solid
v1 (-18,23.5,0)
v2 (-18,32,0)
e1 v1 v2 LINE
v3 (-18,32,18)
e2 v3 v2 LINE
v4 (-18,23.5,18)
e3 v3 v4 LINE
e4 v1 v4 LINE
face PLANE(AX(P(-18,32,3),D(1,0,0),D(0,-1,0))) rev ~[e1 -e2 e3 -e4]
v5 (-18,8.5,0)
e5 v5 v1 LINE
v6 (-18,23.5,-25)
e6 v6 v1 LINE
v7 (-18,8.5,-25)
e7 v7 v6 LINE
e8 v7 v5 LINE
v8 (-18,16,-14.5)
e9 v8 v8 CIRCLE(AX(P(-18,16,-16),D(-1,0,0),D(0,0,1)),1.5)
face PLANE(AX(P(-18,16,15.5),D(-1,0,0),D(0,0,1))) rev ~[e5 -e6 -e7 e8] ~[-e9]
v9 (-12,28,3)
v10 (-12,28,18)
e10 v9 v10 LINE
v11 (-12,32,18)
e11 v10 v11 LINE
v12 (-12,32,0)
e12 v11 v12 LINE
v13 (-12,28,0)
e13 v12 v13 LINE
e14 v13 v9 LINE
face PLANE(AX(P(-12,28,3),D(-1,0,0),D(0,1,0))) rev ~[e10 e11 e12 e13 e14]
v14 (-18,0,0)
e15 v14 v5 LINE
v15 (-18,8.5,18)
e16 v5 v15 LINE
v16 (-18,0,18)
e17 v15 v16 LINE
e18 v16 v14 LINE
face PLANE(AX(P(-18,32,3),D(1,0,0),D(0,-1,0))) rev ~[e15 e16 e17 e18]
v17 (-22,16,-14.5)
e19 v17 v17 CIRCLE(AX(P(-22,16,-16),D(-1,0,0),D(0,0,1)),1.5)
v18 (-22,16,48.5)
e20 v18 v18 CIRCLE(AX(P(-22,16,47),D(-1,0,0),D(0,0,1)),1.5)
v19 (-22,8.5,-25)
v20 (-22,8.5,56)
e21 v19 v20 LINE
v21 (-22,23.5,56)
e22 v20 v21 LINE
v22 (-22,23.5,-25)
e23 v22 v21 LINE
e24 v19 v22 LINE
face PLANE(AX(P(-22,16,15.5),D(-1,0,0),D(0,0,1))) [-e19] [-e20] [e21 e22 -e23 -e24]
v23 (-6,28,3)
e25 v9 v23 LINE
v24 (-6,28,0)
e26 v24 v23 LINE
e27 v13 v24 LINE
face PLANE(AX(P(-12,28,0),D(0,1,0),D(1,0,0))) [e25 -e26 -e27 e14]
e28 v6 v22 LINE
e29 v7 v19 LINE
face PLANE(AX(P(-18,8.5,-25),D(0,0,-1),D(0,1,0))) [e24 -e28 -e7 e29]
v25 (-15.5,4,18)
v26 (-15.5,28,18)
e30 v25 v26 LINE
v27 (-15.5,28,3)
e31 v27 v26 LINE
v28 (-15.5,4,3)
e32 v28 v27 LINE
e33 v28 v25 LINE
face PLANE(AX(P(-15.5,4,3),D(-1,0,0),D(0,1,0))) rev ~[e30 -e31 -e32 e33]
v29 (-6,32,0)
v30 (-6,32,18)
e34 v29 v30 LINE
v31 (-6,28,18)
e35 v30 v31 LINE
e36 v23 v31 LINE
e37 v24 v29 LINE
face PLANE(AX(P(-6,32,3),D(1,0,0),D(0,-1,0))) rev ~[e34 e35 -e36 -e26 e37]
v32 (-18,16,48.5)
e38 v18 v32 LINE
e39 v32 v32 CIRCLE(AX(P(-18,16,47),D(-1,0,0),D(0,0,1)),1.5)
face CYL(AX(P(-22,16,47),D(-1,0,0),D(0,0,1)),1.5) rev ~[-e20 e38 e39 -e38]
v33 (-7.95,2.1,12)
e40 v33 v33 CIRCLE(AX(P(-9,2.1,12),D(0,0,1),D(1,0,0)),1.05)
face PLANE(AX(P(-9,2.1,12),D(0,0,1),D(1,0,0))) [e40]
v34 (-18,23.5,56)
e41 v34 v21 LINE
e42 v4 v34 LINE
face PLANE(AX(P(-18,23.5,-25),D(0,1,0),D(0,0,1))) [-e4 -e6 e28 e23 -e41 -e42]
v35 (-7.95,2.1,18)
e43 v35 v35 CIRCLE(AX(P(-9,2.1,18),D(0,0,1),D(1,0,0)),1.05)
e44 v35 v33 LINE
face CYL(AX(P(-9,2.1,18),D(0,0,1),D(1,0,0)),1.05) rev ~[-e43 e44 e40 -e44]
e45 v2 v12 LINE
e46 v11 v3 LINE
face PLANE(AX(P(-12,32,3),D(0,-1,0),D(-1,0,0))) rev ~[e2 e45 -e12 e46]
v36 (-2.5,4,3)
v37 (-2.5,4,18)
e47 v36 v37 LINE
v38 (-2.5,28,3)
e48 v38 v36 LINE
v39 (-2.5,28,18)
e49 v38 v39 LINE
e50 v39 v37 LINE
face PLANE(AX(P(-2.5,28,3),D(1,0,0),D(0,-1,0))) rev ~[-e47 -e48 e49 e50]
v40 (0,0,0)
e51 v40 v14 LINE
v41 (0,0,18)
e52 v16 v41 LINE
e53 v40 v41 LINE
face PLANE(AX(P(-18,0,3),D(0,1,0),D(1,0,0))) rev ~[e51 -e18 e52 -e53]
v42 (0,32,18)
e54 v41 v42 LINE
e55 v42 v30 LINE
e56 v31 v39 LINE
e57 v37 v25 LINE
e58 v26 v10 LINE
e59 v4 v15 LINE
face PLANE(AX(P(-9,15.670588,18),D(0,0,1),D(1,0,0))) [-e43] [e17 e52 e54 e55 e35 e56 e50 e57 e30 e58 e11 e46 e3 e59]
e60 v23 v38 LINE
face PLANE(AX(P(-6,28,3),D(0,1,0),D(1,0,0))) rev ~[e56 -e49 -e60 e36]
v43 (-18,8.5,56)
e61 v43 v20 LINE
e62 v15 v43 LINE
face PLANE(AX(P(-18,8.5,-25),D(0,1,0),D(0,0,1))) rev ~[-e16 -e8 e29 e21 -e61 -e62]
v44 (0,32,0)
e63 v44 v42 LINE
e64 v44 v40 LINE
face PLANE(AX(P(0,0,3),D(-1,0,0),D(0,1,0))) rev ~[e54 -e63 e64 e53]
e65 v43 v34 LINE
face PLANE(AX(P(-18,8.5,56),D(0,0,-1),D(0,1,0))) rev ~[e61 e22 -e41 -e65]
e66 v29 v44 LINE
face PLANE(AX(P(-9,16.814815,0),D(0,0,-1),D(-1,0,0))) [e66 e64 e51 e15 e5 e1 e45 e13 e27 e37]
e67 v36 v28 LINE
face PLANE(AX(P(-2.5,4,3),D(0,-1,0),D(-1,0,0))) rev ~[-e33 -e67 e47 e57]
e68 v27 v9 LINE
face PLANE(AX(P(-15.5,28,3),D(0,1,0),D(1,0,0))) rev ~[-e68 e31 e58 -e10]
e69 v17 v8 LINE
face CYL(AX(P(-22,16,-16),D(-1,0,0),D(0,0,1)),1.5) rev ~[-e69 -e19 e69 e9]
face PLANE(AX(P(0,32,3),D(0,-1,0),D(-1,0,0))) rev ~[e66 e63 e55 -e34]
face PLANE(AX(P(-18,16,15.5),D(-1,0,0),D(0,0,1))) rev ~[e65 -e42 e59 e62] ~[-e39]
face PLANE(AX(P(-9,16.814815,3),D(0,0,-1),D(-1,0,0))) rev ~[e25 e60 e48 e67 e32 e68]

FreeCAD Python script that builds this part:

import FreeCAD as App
import Part
import Sketcher
Q = App.Units.Quantity

doc = App.newDocument("Part")
body = doc.addObject("PartDesign::Body", "Body")

# Sketch on XY plane
sketch1 = body.newObject("Sketcher::SketchObject", "Sketch")
sketch1.AttachmentSupport = (doc.getObject("XY_Plane"), [""])
sketch1.MapMode = "FlatFace"
sketch1.addGeometry([
    Part.LineSegment(App.Vector(-12, 28, 0), App.Vector(-12, 32, 0)),  # 0
    Part.LineSegment(App.Vector(-12, 32, 0), App.Vector(-18, 32, 0)),  # 1
    Part.LineSegment(App.Vector(-18, 32, 0), App.Vector(-18, 0, 0)),  # 2
    Part.LineSegment(App.Vector(-18, 0, 0), App.Vector(0, 0, 0)),  # 3
    Part.LineSegment(App.Vector(0, 0, 0), App.Vector(0, 32, 0)),  # 4
    Part.LineSegment(App.Vector(0, 32, 0), App.Vector(-6, 32, 0)),  # 5
    Part.LineSegment(App.Vector(-6, 32, 0), App.Vector(-6, 28, 0)),  # 6
    Part.LineSegment(App.Vector(-6, 28, 0), App.Vector(-12, 28, 0)),  # 7
], False)
sketch1.addConstraint([
    Sketcher.Constraint("Coincident", 0, 2, 1, 1),
    Sketcher.Constraint("Coincident", 1, 2, 2, 1),
    Sketcher.Constraint("Coincident", 2, 2, 3, 1),
    Sketcher.Constraint("Coincident", 3, 2, 4, 1),
    Sketcher.Constraint("Coincident", 4, 2, 5, 1),
    Sketcher.Constraint("Coincident", 5, 2, 6, 1),
    Sketcher.Constraint("Coincident", 6, 2, 7, 1),
    Sketcher.Constraint("Coincident", 7, 2, 0, 1),
    Sketcher.Constraint("Vertical", 0),
    Sketcher.Constraint("Horizontal", 1),
    Sketcher.Constraint("Vertical", 2),
    Sketcher.Constraint("Horizontal", 3),
    Sketcher.Constraint("Vertical", 4),
    Sketcher.Constraint("Horizontal", 5),
    Sketcher.Constraint("Vertical", 6),
    Sketcher.Constraint("Horizontal", 7),
    Sketcher.Constraint("Coincident", 3, 2, -1, 1),
    Sketcher.Constraint("Horizontal", 1, 2, 4, 2),
    Sketcher.Constraint("Equal", 1, 5),
    Sketcher.Constraint("Equal", 5, 7),
    Sketcher.Constraint("DistanceX", 1, 2, 1, 1, Q("6 mm")),
    Sketcher.Constraint("DistanceY", 0, 1, 0, 2, Q("4 mm")),
    Sketcher.Constraint("DistanceY", 2, 2, 2, 1, Q("32 mm")),
])
pad1 = body.newObject("PartDesign::Pad", "Pad")
pad1.Profile = sketch1
pad1.Length = 3

# Sketch on XY plane
sketch2 = body.newObject("Sketcher::SketchObject", "Sketch001")
sketch2.AttachmentSupport = (doc.getObject("XY_Plane"), [""])
sketch2.MapMode = "FlatFace"
sketch2.AttachmentOffset = App.Placement(App.Vector(0, 0, 3), App.Rotation())
sketch2.addGeometry([
    Part.LineSegment(App.Vector(-18, 0, 0), App.Vector(0, 0, 0)),  # 0
    Part.LineSegment(App.Vector(0, 0, 0), App.Vector(0, 32, 0)),  # 1
    Part.LineSegment(App.Vector(0, 32, 0), App.Vector(-6, 32, 0)),  # 2
    Part.LineSegment(App.Vector(-6, 32, 0), App.Vector(-6, 28, 0)),  # 3
    Part.LineSegment(App.Vector(-6, 28, 0), App.Vector(-2.5, 28, 0)),  # 4
    Part.LineSegment(App.Vector(-2.5, 28, 0), App.Vector(-2.5, 4, 0)),  # 5
    Part.LineSegment(App.Vector(-2.5, 4, 0), App.Vector(-15.5, 4, 0)),  # 6
    Part.LineSegment(App.Vector(-15.5, 4, 0), App.Vector(-15.5, 28, 0)),  # 7
    Part.LineSegment(App.Vector(-15.5, 28, 0), App.Vector(-12, 28, 0)),  # 8
    Part.LineSegment(App.Vector(-12, 28, 0), App.Vector(-12, 32, 0)),  # 9
    Part.LineSegment(App.Vector(-12, 32, 0), App.Vector(-18, 32, 0)),  # 10
    Part.LineSegment(App.Vector(-18, 32, 0), App.Vector(-18, 0, 0)),  # 11
], False)
sketch2.addConstraint([
    Sketcher.Constraint("Coincident", 0, 2, 1, 1),
    Sketcher.Constraint("Coincident", 1, 2, 2, 1),
    Sketcher.Constraint("Coincident", 2, 2, 3, 1),
    Sketcher.Constraint("Coincident", 3, 2, 4, 1),
    Sketcher.Constraint("Coincident", 4, 2, 5, 1),
    Sketcher.Constraint("Coincident", 5, 2, 6, 1),
    Sketcher.Constraint("Coincident", 6, 2, 7, 1),
    Sketcher.Constraint("Coincident", 7, 2, 8, 1),
    Sketcher.Constraint("Coincident", 8, 2, 9, 1),
    Sketcher.Constraint("Coincident", 9, 2, 10, 1),
    Sketcher.Constraint("Coincident", 10, 2, 11, 1),
    Sketcher.Constraint("Coincident", 11, 2, 0, 1),
    Sketcher.Constraint("Horizontal", 0),
    Sketcher.Constraint("Vertical", 1),
    Sketcher.Constraint("Horizontal", 2),
    Sketcher.Constraint("Vertical", 3),
    Sketcher.Constraint("Horizontal", 4),
    Sketcher.Constraint("Vertical", 5),
    Sketcher.Constraint("Horizontal", 6),
    Sketcher.Constraint("Vertical", 7),
    Sketcher.Constraint("Horizontal", 8),
    Sketcher.Constraint("Vertical", 9),
    Sketcher.Constraint("Horizontal", 10),
    Sketcher.Constraint("Vertical", 11),
    Sketcher.Constraint("Coincident", 0, 2, -1, 1),
    Sketcher.Constraint("Horizontal", 4, 2, 7, 2),
    Sketcher.Constraint("Horizontal", 2, 2, 9, 2),
    Sketcher.Constraint("Equal", 4, 8),
    Sketcher.Constraint("Equal", 2, 10),
    Sketcher.Constraint("DistanceX", 0, 1, 0, 2, Q("18 mm")),
    Sketcher.Constraint("DistanceX", 2, 2, 2, 1, Q("6 mm")),
    Sketcher.Constraint("DistanceX", 6, 2, 6, 1, Q("13 mm")),
    Sketcher.Constraint("DistanceY", 1, 1, 1, 2, Q("32 mm")),
    Sketcher.Constraint("DistanceY", 3, 2, 3, 1, Q("4 mm")),
    Sketcher.Constraint("DistanceY", 5, 2, 5, 1, Q("24 mm")),
])
pad2 = body.newObject("PartDesign::Pad", "Pad001")
pad2.Profile = sketch2
pad2.Length = 15

# Sketch on XY plane
sketch3 = body.newObject("Sketcher::SketchObject", "Sketch002")
sketch3.AttachmentSupport = (doc.getObject("XY_Plane"), [""])
sketch3.MapMode = "FlatFace"
sketch3.AttachmentOffset = App.Placement(App.Vector(0, 0, 18), App.Rotation())
sketch3.addGeometry(Part.Circle(App.Vector(-9, 2.1, 0), App.Vector(0, 0, 1), 1.05), False)
sketch3.addConstraint([
    Sketcher.Constraint("Diameter", 0, Q("2.1 mm")),
    Sketcher.Constraint("DistanceX", 0, 3, -1, 1, Q("9 mm")),
    Sketcher.Constraint("DistanceY", -1, 1, 0, 3, Q("2.1 mm")),
])
pocket1 = body.newObject("PartDesign::Pocket", "Pocket")
pocket1.Profile = sketch3
pocket1.Length = 6

# Sketch on YZ plane
sketch4 = body.newObject("Sketcher::SketchObject", "Sketch003")
sketch4.AttachmentSupport = (doc.getObject("YZ_Plane"), [""])
sketch4.MapMode = "FlatFace"
sketch4.AttachmentOffset = App.Placement(App.Vector(0, 0, -18), App.Rotation())
sketch4.addGeometry([
    Part.LineSegment(App.Vector(23.5, -25, 0), App.Vector(8.5, -25, 0)),
    Part.LineSegment(App.Vector(8.5, -25, 0), App.Vector(8.5, 56, 0)),
    Part.LineSegment(App.Vector(8.5, 56, 0), App.Vector(23.5, 56, 0)),
    Part.LineSegment(App.Vector(23.5, 56, 0), App.Vector(23.5, -25, 0)),
], False)
sketch4.addConstraint([
    Sketcher.Constraint("Coincident", 0, 2, 1, 1),
    Sketcher.Constraint("Coincident", 1, 2, 2, 1),
    Sketcher.Constraint("Coincident", 2, 2, 3, 1),
    Sketcher.Constraint("Coincident", 3, 2, 0, 1),
    Sketcher.Constraint("Horizontal", 0),
    Sketcher.Constraint("Vertical", 1),
    Sketcher.Constraint("Horizontal", 2),
    Sketcher.Constraint("Vertical", 3),
    Sketcher.Constraint("DistanceX", 0, 2, 0, 1, Q("15 mm")),
    Sketcher.Constraint("DistanceY", 1, 1, 1, 2, Q("81 mm")),
    Sketcher.Constraint("DistanceY", 0, 2, -1, 1, Q("25 mm")),
    Sketcher.Constraint("DistanceX", -1, 1, 0, 2, Q("8.5 mm")),
])
pad3 = body.newObject("PartDesign::Pad", "Pad002")
pad3.Profile = sketch4
pad3.Length = 4
pad3.Reversed = True

# Sketch on YZ plane
sketch5 = body.newObject("Sketcher::SketchObject", "Sketch004")
sketch5.AttachmentSupport = (doc.getObject("YZ_Plane"), [""])
sketch5.MapMode = "FlatFace"
sketch5.AttachmentOffset = App.Placement(App.Vector(0, 0, -22), App.Rotation())
sketch5.addGeometry([
    Part.Circle(App.Vector(16, -16, 0), App.Vector(0, 0, 1), 1.5),
    Part.Circle(App.Vector(16, 47, 0), App.Vector(0, 0, 1), 1.5),
], False)
sketch5.addConstraint([
    Sketcher.Constraint("Equal", 0, 1),
    Sketcher.Constraint("Vertical", 0, 3, 1, 3),
    Sketcher.Constraint("Diameter", 0, Q("3 mm")),
    Sketcher.Constraint("DistanceX", -1, 1, 0, 3, Q("16 mm")),
    Sketcher.Constraint("DistanceY", 0, 3, -1, 1, Q("16 mm")),
    Sketcher.Constraint("DistanceY", -1, 1, 1, 3, Q("47 mm")),
])
pocket2 = body.newObject("PartDesign::Pocket", "Pocket001")
pocket2.Profile = sketch5
pocket2.Length = 4
pocket2.Reversed = True

doc.recompute()
